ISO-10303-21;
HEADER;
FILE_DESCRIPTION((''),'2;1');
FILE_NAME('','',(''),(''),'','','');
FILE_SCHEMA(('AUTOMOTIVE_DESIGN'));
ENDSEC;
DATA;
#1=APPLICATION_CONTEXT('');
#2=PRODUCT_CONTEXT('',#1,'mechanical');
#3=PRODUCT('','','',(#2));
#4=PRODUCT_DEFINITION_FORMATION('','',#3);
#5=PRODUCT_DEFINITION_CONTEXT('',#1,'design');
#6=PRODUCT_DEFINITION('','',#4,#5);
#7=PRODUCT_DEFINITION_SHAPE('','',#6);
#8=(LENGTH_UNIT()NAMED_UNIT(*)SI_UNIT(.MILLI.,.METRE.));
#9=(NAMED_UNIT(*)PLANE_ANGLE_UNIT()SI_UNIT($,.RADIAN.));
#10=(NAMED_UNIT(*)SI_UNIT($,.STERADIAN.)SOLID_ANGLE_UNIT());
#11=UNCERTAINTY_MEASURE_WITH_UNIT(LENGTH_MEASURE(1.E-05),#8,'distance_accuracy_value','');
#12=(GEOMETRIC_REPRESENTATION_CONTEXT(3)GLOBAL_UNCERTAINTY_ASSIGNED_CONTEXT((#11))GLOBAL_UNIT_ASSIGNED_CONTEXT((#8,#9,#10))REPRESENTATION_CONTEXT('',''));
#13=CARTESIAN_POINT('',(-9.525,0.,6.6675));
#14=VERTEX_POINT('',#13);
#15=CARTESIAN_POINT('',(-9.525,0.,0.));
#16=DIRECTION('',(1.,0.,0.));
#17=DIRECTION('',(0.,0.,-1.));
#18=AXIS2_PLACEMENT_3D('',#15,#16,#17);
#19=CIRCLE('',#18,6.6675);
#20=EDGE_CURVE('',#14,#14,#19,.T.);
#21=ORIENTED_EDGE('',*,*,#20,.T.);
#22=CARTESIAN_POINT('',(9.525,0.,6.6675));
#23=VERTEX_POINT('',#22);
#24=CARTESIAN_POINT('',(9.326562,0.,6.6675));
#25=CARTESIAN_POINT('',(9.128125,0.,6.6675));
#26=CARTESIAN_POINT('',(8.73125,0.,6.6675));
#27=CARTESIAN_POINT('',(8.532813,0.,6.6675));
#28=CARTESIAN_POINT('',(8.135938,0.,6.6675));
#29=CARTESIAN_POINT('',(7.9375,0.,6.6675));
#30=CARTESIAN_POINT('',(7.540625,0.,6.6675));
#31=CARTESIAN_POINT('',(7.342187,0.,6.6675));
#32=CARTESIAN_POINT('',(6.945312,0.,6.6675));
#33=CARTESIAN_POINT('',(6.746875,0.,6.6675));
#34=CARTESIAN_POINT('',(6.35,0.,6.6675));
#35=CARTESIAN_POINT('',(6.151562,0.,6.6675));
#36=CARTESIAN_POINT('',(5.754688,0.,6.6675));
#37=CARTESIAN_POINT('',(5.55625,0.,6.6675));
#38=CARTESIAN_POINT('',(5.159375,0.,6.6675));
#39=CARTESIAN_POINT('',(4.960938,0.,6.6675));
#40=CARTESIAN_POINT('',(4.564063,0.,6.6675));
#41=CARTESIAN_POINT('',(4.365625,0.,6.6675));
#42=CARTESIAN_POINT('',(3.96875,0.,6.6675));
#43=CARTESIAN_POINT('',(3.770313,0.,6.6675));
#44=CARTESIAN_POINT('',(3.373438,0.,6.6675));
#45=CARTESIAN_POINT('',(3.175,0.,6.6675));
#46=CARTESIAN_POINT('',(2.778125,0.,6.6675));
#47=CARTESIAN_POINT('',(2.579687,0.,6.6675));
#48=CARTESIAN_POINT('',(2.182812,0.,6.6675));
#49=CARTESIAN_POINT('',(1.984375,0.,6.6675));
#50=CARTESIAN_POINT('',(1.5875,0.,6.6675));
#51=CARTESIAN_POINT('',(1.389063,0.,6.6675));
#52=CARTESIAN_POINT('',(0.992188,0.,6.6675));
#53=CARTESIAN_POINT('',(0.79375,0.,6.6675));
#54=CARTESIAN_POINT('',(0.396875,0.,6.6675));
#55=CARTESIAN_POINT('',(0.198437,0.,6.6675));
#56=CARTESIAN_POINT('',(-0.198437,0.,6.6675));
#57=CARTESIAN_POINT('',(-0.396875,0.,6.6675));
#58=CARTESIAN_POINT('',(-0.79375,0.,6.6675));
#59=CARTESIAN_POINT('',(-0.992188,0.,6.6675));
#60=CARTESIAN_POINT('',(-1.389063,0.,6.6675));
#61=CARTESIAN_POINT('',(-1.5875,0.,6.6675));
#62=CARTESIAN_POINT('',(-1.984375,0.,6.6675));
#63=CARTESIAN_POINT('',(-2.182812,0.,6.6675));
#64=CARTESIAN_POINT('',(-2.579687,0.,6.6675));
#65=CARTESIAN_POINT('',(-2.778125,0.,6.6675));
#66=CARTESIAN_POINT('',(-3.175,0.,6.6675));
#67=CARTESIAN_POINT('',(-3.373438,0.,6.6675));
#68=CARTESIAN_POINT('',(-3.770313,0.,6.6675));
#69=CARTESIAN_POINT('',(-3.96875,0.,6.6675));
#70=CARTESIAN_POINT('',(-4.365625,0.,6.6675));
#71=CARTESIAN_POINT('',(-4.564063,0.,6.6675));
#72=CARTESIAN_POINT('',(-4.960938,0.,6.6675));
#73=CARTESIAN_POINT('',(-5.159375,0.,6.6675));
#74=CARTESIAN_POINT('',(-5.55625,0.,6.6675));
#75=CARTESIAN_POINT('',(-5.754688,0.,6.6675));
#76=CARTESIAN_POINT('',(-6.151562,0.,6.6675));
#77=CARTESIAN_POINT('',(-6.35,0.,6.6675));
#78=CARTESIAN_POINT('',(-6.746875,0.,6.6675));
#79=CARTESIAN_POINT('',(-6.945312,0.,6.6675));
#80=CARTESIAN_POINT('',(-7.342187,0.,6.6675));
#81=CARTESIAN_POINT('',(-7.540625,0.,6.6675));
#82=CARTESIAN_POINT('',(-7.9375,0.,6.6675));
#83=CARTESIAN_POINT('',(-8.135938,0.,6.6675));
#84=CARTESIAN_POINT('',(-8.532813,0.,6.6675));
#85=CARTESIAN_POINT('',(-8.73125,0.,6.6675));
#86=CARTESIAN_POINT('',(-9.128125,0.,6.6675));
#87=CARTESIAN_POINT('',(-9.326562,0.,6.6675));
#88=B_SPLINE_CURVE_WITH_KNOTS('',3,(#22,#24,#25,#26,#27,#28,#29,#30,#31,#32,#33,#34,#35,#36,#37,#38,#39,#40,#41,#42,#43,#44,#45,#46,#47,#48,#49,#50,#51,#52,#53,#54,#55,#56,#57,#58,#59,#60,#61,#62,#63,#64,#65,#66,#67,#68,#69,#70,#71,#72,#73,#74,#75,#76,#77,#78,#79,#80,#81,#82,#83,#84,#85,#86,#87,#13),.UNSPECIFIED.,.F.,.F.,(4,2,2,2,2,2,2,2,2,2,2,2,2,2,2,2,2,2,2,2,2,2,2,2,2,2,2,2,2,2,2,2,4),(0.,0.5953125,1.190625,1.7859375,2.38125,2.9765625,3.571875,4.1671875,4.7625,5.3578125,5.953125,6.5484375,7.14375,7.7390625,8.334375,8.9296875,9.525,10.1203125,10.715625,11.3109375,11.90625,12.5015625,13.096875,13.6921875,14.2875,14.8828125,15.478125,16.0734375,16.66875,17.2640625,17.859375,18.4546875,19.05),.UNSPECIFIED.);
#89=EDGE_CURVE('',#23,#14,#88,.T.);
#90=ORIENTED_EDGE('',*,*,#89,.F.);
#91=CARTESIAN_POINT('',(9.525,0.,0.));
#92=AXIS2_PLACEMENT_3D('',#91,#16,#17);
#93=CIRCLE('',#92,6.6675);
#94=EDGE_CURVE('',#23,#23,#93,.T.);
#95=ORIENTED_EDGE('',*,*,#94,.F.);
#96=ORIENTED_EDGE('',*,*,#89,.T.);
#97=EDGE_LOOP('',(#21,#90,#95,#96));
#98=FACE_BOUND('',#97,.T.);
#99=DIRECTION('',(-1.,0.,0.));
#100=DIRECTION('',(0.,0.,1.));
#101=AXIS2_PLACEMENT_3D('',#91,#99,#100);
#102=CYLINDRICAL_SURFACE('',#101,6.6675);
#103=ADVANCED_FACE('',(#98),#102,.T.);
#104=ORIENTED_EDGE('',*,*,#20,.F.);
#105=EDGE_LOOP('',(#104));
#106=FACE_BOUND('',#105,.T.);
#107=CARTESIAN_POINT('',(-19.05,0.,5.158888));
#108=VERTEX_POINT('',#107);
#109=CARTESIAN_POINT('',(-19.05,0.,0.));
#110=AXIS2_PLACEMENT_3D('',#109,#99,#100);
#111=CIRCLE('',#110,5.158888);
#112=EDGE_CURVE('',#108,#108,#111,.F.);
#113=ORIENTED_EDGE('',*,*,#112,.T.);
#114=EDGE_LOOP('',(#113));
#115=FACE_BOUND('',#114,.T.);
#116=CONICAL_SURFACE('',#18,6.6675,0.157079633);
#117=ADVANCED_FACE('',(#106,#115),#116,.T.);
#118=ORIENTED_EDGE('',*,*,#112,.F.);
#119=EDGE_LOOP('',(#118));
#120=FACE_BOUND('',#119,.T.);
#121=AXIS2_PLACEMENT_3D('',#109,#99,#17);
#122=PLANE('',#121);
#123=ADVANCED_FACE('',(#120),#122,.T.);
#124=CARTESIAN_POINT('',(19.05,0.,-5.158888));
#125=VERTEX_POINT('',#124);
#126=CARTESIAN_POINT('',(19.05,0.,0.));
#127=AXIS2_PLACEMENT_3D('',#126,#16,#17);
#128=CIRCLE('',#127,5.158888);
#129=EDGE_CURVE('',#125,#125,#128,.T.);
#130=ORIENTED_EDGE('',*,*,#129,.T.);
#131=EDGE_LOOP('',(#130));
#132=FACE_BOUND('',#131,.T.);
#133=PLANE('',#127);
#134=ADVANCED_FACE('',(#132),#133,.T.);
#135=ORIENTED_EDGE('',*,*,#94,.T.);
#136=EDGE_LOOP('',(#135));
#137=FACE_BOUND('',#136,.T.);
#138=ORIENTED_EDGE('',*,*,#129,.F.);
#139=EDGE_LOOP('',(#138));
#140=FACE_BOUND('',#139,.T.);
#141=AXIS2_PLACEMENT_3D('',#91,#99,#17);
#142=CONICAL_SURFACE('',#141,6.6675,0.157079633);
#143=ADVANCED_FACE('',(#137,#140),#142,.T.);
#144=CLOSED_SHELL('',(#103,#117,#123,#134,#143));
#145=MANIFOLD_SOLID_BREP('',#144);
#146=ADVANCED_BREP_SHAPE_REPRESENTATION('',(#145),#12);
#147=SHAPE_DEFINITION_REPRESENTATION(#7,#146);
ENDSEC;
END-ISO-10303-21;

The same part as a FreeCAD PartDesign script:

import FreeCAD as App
import Part
import Sketcher
Q = App.Units.Quantity

doc = App.newDocument("Part")
body = doc.addObject("PartDesign::Body", "Body")

sketch1 = body.newObject("Sketcher::SketchObject", "Sketch")
sketch1.AttachmentSupport = (doc.getObject("YZ_Plane"), [""])
sketch1.MapMode = "FlatFace"
sketch1.addGeometry(Part.Circle(App.Vector(0, 0, 0), App.Vector(0, 0, 1), 7), False)
sketch1.addConstraint([
    Sketcher.Constraint("Coincident", 0, 3, -1, 1),
    Sketcher.Constraint("Diameter", 0, Q("0.525 in")),
])
pad1 = body.newObject("PartDesign::Pad", "Pad")
pad1.Profile = sketch1
pad1.Length = Q("0.75 in")
pad1.Midplane = True

sketch2 = body.newObject("Sketcher::SketchObject", "Sketch001")
sketch2.AttachmentSupport = (doc.getObject("YZ_Plane"), [""])
sketch2.MapMode = "FlatFace"
sketch2.AttachmentOffset = App.Placement(App.Vector(0, 0, 0.375 * 25.4), App.Rotation())
sketch2.addGeometry(Part.Circle(App.Vector(0, 0, 0), App.Vector(0, 0, 1), 7), False)
sketch2.addConstraint([
    Sketcher.Constraint("Coincident", 0, 3, -1, 1),
    Sketcher.Constraint("Diameter", 0, Q("0.525 in")),
])
pad2 = body.newObject("PartDesign::Pad", "Pad001")
pad2.Profile = sketch2
pad2.Length = Q("0.375 in")
pad2.TaperAngle = -9
doc.recompute()

mirrored = body.newObject("PartDesign::Mirrored", "Mirrored")
mirrored.Originals = [pad2]
mirrored.MirrorPlane = (doc.getObject("YZ_Plane"), [""])
body.Tip = mirrored

doc.recompute()
